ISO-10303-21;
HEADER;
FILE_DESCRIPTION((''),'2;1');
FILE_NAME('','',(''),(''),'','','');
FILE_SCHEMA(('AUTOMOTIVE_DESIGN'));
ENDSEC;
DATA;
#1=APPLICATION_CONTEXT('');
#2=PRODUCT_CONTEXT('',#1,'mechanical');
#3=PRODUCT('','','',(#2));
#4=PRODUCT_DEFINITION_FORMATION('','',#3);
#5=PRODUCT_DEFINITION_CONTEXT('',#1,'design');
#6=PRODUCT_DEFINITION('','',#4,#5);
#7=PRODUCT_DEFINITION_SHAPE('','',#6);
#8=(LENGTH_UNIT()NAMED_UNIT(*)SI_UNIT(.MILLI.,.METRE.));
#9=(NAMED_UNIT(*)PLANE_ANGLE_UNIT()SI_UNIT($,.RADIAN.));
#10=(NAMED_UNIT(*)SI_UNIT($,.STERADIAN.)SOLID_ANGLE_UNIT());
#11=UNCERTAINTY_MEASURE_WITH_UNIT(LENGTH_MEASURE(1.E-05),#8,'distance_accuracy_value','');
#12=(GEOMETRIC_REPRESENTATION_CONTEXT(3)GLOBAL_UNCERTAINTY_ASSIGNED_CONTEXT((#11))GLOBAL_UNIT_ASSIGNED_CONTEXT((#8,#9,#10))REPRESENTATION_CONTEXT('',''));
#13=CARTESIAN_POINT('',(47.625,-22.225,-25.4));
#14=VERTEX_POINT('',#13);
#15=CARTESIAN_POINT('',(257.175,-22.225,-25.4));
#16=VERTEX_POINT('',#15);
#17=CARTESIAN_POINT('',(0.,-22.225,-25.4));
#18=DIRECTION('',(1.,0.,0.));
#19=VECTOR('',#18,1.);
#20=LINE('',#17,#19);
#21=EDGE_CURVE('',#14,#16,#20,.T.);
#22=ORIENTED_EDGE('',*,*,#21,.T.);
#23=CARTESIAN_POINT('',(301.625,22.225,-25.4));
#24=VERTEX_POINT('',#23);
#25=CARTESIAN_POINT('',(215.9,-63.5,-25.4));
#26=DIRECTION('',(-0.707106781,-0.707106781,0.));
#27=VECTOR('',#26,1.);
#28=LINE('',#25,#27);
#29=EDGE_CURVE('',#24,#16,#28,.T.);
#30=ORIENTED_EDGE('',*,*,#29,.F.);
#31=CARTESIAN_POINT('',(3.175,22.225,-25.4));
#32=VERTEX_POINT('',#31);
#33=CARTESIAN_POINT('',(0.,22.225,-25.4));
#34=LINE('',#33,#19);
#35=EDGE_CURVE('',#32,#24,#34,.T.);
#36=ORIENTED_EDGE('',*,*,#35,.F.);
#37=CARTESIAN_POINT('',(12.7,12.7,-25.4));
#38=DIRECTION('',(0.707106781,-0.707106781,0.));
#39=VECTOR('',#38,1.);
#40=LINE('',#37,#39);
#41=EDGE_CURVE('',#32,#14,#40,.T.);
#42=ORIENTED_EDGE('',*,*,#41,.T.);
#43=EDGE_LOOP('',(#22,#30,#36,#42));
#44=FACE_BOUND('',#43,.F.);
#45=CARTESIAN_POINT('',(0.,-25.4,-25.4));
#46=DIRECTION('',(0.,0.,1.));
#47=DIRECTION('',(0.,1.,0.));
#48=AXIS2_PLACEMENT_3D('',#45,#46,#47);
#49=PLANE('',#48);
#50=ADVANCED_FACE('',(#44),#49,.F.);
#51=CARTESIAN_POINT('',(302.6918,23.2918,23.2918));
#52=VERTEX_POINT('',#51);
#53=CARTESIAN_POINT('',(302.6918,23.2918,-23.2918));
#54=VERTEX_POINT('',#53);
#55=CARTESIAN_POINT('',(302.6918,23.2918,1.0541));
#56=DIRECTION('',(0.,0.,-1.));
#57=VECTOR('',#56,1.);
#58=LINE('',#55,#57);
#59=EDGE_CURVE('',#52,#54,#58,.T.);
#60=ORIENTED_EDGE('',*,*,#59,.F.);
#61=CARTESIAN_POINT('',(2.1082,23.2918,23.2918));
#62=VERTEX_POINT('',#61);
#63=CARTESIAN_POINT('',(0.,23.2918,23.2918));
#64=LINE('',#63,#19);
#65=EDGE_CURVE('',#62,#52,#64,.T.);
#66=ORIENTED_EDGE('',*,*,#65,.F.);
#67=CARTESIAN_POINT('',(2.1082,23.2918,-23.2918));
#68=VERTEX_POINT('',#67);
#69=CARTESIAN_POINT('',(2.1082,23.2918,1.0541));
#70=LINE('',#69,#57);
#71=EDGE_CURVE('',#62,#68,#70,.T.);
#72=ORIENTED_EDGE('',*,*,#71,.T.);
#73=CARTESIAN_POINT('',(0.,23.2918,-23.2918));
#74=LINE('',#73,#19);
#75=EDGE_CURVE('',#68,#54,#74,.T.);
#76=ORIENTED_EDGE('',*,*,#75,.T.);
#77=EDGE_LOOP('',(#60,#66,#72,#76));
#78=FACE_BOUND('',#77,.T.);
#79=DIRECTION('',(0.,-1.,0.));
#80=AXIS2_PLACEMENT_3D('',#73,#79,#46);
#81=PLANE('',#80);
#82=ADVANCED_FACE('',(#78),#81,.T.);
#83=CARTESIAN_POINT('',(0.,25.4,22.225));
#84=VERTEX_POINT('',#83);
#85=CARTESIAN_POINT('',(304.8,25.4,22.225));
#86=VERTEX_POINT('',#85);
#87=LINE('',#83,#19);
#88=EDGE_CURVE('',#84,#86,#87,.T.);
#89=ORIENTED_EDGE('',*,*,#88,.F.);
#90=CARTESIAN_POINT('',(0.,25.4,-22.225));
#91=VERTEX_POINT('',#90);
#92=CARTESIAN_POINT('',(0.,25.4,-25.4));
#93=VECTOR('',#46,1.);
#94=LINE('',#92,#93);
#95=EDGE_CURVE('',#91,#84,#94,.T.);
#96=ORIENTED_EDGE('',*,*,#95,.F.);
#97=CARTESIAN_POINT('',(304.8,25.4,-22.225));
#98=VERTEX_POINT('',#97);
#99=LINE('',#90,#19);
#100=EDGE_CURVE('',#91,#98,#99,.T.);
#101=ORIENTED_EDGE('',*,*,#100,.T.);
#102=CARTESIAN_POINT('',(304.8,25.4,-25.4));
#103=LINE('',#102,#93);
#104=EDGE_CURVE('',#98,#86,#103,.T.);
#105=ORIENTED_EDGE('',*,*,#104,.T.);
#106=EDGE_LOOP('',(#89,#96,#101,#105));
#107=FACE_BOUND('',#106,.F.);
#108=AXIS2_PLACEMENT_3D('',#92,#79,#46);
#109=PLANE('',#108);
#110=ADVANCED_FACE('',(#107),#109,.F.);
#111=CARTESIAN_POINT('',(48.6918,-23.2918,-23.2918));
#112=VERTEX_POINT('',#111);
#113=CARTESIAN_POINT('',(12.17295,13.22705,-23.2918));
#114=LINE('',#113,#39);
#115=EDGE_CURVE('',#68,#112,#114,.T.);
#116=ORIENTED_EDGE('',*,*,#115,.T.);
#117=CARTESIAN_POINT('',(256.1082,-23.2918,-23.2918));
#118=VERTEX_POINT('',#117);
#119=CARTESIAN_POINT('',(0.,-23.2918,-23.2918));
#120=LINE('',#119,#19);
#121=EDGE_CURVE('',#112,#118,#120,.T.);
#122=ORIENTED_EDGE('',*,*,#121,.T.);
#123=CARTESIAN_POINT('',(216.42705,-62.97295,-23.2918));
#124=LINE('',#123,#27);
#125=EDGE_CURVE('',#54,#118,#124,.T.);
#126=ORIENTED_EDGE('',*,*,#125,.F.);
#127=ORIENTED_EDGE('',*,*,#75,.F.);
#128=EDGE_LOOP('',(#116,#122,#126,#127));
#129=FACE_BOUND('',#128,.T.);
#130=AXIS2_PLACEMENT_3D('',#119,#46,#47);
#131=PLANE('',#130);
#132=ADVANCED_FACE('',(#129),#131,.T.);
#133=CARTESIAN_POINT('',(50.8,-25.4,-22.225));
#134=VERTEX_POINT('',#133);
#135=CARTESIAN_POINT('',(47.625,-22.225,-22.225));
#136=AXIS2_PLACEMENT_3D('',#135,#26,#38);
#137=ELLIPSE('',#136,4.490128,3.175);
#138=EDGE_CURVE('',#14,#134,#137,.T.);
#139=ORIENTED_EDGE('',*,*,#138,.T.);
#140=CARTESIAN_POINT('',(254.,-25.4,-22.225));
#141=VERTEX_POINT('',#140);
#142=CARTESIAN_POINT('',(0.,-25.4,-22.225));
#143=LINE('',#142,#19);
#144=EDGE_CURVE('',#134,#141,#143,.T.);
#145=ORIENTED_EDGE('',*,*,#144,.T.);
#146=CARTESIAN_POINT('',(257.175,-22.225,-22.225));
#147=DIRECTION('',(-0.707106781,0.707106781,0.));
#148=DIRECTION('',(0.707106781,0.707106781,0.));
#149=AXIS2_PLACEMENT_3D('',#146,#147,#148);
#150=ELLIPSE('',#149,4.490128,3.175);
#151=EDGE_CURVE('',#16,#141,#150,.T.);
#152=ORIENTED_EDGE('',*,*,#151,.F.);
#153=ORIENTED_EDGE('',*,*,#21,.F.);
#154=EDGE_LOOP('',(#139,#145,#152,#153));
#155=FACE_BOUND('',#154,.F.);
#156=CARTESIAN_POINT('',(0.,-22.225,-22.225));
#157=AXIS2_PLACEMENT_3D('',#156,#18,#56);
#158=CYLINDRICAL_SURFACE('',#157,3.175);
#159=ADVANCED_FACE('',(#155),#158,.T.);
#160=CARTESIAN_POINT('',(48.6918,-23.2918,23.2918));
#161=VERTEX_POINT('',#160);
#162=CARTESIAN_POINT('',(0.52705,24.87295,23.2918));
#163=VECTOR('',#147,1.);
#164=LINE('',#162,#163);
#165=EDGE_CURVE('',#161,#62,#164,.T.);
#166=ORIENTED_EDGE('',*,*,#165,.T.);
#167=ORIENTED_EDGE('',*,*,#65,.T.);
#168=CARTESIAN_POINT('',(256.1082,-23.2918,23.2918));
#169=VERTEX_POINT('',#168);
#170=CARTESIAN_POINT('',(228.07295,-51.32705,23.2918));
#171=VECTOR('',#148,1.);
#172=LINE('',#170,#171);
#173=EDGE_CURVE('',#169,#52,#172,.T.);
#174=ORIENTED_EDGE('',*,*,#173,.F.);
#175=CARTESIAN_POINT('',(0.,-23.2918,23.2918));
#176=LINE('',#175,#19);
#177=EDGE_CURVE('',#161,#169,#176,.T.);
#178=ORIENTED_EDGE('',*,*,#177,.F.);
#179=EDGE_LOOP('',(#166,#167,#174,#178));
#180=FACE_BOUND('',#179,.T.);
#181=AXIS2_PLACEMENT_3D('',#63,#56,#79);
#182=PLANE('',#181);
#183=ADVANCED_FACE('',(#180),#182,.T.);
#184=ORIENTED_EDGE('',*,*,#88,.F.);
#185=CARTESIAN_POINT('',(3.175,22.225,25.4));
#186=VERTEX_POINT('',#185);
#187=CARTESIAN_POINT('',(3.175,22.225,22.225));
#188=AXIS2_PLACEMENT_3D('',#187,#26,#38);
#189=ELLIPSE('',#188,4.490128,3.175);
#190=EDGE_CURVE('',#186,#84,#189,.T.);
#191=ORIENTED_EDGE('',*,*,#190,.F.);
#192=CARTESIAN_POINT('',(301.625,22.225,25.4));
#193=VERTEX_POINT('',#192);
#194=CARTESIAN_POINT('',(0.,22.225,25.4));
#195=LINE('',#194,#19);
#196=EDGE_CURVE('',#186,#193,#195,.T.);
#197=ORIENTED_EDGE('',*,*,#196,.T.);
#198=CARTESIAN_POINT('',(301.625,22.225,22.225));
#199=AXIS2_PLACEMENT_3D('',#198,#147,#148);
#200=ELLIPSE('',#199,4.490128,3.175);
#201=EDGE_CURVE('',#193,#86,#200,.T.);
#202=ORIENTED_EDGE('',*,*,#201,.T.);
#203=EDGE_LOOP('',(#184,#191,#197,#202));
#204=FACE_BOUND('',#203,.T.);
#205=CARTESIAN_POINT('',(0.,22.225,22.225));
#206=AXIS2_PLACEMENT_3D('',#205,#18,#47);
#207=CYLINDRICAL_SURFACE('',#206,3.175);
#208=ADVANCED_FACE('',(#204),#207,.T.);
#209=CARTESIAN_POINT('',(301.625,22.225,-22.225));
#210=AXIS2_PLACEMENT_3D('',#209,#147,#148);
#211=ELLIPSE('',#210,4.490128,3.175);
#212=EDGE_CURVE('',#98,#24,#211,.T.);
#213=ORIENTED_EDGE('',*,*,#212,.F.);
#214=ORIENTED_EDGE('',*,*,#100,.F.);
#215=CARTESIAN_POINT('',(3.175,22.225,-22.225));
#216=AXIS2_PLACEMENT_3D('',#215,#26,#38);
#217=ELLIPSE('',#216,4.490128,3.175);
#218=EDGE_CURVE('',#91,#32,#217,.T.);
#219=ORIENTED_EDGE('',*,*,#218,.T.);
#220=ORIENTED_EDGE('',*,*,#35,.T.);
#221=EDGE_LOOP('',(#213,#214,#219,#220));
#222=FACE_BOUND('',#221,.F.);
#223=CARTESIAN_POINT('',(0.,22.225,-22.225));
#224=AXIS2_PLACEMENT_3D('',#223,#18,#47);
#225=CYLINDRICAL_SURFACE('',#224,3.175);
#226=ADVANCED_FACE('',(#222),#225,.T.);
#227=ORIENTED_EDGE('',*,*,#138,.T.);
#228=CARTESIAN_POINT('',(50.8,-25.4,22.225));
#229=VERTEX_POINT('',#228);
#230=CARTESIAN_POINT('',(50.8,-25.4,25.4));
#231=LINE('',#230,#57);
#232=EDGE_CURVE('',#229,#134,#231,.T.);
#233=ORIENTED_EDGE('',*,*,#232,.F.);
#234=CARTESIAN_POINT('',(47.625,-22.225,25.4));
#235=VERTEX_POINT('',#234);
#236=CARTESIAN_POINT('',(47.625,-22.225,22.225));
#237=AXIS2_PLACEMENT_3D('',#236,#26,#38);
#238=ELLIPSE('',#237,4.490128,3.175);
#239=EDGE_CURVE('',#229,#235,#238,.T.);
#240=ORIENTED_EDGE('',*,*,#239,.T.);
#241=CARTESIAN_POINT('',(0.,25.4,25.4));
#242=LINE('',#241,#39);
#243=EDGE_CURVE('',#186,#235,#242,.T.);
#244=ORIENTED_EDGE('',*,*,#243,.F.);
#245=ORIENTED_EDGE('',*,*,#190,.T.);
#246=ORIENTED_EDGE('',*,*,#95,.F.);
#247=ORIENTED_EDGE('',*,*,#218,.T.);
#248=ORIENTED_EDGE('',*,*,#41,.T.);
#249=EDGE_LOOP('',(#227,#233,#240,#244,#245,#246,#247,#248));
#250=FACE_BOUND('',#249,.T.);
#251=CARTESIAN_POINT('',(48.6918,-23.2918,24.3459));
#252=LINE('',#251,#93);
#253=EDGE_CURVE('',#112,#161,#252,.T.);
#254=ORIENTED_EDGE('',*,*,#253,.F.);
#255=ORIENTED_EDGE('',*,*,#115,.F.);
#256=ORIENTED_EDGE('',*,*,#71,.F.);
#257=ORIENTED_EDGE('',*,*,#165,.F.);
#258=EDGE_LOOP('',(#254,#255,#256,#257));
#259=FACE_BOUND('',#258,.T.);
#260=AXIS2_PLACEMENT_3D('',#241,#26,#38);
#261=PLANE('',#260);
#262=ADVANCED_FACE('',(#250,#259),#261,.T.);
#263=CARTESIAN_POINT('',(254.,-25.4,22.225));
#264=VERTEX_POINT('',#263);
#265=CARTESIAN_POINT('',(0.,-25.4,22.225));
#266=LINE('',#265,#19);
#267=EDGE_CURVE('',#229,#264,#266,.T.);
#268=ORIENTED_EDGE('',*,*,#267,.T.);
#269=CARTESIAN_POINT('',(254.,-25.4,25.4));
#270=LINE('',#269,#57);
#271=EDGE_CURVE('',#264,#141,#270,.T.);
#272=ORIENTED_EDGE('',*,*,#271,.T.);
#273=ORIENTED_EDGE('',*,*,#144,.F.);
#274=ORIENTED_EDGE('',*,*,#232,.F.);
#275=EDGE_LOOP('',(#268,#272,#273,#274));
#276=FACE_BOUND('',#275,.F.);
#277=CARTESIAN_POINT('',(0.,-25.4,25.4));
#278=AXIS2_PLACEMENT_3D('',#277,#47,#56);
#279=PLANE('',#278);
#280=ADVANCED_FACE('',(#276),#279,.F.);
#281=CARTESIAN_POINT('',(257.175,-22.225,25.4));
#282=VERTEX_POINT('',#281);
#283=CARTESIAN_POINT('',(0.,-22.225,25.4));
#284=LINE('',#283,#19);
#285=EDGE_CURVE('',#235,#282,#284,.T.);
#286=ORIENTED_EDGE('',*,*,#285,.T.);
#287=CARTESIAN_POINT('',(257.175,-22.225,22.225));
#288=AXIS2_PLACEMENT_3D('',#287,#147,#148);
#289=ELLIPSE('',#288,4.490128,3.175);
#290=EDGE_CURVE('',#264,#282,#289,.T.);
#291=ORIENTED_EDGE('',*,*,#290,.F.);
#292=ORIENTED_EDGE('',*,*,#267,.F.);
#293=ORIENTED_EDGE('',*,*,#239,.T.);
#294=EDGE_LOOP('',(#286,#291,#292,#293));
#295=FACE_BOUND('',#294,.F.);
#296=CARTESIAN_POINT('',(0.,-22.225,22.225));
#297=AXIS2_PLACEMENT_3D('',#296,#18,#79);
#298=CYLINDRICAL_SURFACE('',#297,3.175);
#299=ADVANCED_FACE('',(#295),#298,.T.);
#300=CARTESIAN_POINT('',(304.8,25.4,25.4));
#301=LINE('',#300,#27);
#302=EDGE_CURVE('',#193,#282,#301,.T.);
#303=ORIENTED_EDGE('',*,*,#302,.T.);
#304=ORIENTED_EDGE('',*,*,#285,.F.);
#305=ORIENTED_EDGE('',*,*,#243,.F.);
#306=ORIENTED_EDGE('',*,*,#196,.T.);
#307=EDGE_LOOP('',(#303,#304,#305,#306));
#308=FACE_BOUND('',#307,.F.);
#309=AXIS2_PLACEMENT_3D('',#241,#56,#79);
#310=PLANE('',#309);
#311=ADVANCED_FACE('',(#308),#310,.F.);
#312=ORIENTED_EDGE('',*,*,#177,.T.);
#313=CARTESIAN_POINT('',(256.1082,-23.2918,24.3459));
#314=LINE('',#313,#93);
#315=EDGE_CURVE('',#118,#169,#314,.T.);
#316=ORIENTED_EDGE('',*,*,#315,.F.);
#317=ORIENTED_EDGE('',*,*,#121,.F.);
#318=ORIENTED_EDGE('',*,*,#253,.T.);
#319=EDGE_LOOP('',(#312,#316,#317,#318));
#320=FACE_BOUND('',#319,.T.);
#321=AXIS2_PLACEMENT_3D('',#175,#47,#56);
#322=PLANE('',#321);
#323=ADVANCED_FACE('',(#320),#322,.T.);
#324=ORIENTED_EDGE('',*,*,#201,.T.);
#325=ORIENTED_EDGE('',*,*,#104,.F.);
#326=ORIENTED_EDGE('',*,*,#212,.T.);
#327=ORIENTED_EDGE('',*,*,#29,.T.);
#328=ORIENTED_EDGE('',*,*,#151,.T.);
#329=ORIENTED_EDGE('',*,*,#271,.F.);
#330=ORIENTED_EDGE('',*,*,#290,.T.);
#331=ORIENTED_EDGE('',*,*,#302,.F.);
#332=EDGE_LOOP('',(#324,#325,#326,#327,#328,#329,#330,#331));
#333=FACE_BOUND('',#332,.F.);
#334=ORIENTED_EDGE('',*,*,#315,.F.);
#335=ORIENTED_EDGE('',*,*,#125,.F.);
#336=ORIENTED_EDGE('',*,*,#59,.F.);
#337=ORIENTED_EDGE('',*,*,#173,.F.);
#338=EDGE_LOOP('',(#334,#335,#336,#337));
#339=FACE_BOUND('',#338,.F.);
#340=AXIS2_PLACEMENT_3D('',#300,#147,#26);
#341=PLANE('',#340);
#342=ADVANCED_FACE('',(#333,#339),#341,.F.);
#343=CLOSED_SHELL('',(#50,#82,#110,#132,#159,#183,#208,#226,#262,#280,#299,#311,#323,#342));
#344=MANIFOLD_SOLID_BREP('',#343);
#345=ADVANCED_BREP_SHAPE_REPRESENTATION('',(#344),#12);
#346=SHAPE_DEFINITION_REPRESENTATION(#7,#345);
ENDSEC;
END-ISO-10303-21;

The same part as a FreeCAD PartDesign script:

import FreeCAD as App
import Part
import Sketcher
from FreeCAD import Vector
Q = App.Units.Quantity


def edges_at(feature, points):
    """Names of the edges that pass closest to the given points."""
    edges = feature.Shape.Edges
    near = lambda p: min(range(len(edges)), key=lambda i: edges[i].distToShape(Part.Vertex(*p))[0])
    return sorted({f"Edge{near(p) + 1}" for p in points})

doc = App.newDocument("Part")
params = doc.addObject("Spreadsheet::Sheet", "Params")
for row, (alias, value) in enumerate([
    ("sketch1_width", "2 in"),
    ("pad1_length", "12 in"),
    ("fillet_radius", "0.125 in"),
    ("sketch2_width", "2 in"),
], start=1):
    params.set(f"A{row}", alias)
    params.set(f"B{row}", "=" + value)
    params.setAlias(f"B{row}", alias)

body = doc.addObject("PartDesign::Body", "Body")

# Sketch on YZ plane
sketch1 = body.newObject("Sketcher::SketchObject", "Sketch")
sketch1.AttachmentSupport = (doc.getObject("YZ_Plane"), [""])
sketch1.MapMode = "FlatFace"
sketch1.addGeometry([
    Part.LineSegment(Vector(25, -25, 0), Vector(25, 25, 0)),  # 0
    Part.LineSegment(Vector(25, 25, 0), Vector(-25, 25, 0)),  # 1
    Part.LineSegment(Vector(-25, 25, 0), Vector(-25, -25, 0)),  # 2
    Part.LineSegment(Vector(-25, -25, 0), Vector(25, -25, 0)),  # 3
    Part.LineSegment(Vector(-23, 23, 0), Vector(23, 23, 0)),  # 4
    Part.LineSegment(Vector(23, 23, 0), Vector(23, -23, 0)),  # 5
    Part.LineSegment(Vector(23, -23, 0), Vector(-23, -23, 0)),  # 6
    Part.LineSegment(Vector(-23, -23, 0), Vector(-23, 23, 0)),  # 7
], False)
sketch1.addConstraint([
    Sketcher.Constraint("Coincident", 0, 2, 1, 1),
    Sketcher.Constraint("Coincident", 1, 2, 2, 1),
    Sketcher.Constraint("Coincident", 2, 2, 3, 1),
    Sketcher.Constraint("Coincident", 3, 2, 0, 1),
    Sketcher.Constraint("Coincident", 4, 2, 5, 1),
    Sketcher.Constraint("Coincident", 5, 2, 6, 1),
    Sketcher.Constraint("Coincident", 6, 2, 7, 1),
    Sketcher.Constraint("Coincident", 7, 2, 4, 1),
    Sketcher.Constraint("Vertical", 0),
    Sketcher.Constraint("Horizontal", 1),
    Sketcher.Constraint("Vertical", 2),
    Sketcher.Constraint("Horizontal", 3),
    Sketcher.Constraint("Horizontal", 4),
    Sketcher.Constraint("Vertical", 5),
    Sketcher.Constraint("Horizontal", 6),
    Sketcher.Constraint("Vertical", 7),
    Sketcher.Constraint("Symmetric", 0, 2, 2, 2, -1, 1),
    Sketcher.Constraint("Symmetric", 4, 2, 6, 2, -1, 1),
    Sketcher.Constraint("Equal", 3, 0),
    Sketcher.Constraint("Equal", 6, 5),
    Sketcher.Constraint("DistanceX", 1, 2, 1, 1, Q("2 in")),
    Sketcher.Constraint("DistanceX", 4, 2, 0, 2, Q("0.083 in")),
])
sketch1.setExpression("Constraints[20]", "Params.sketch1_width")
pad1 = body.newObject("PartDesign::Pad", "Pad")
pad1.Profile = sketch1
pad1.setExpression("Length", "Params.pad1_length")
doc.recompute()

fillet = body.newObject("PartDesign::Fillet", "Fillet")
fillet.Base = (pad1, edges_at(pad1, [
    (152.4, 25.4, 25.4),
    (152.4, -25.4, 25.4),
    (152.4, 25.4, -25.4),
    (152.4, -25.4, -25.4),
]))
fillet.setExpression("Radius", "Params.fillet_radius")

# Sketch on XY plane
sketch2 = body.newObject("Sketcher::SketchObject", "Sketch001")
sketch2.AttachmentSupport = (doc.getObject("XY_Plane"), [""])
sketch2.MapMode = "FlatFace"
sketch2.AttachmentOffset = App.Placement(Vector(0, 0, 1 * 25.4), App.Rotation())
sketch2.addGeometry([
    Part.LineSegment(Vector(0, 25, 0), Vector(0, -25, 0)),  # 0
    Part.LineSegment(Vector(0, -25, 0), Vector(51, -25, 0)),  # 1
    Part.LineSegment(Vector(51, -25, 0), Vector(0, 25, 0)),  # 2
    Part.LineSegment(Vector(305, 25, 0), Vector(254, -25, 0)),  # 3
    Part.LineSegment(Vector(254, -25, 0), Vector(305, -25, 0)),  # 4
    Part.LineSegment(Vector(305, -25, 0), Vector(305, 25, 0)),  # 5
], False)
sketch2.addConstraint([
    Sketcher.Constraint("Coincident", 0, 2, 1, 1),
    Sketcher.Constraint("Coincident", 1, 2, 2, 1),
    Sketcher.Constraint("Coincident", 2, 2, 0, 1),
    Sketcher.Constraint("Coincident", 3, 2, 4, 1),
    Sketcher.Constraint("Coincident", 4, 2, 5, 1),
    Sketcher.Constraint("Coincident", 5, 2, 3, 1),
    Sketcher.Constraint("Vertical", 0),
    Sketcher.Constraint("Horizontal", 1),
    Sketcher.Constraint("Horizontal", 4),
    Sketcher.Constraint("Vertical", 5),
    Sketcher.Constraint("Symmetric", 0, 2, 2, 2, -1, 1),
    Sketcher.Constraint("Perpendicular", 2, 3),
    Sketcher.Constraint("Horizontal", 1, 2, 3, 2),
    Sketcher.Constraint("Horizontal", 2, 2, 5, 2),
    Sketcher.Constraint("Equal", 1, 4),
    Sketcher.Constraint("DistanceX", 1, 1, 1, 2, Q("2 in")),
    Sketcher.Constraint("DistanceX", -1, 1, 3, 2, Q("10 in")),
])
sketch2.setExpression("Constraints[15]", "Params.sketch2_width")
pocket1 = body.newObject("PartDesign::Pocket", "Pocket")
pocket1.Profile = sketch2
pocket1.Type = "ThroughAll"

doc.recompute()
